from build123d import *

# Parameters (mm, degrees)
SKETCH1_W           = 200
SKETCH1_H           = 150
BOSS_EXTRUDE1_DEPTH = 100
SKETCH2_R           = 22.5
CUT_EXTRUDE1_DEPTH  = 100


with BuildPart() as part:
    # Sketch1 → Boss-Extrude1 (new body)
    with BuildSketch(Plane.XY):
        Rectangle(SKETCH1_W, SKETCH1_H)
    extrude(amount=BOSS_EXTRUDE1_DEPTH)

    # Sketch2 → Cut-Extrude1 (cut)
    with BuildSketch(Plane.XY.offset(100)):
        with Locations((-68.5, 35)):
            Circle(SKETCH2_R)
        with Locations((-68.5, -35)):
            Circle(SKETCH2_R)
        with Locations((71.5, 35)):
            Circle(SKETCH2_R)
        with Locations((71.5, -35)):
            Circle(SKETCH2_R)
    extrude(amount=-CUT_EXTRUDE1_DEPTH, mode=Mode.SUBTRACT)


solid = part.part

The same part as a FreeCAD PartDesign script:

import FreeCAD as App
import Part
import Sketcher

V = App.Vector
Q = App.Units.Quantity

doc = App.newDocument("Part")
params = doc.addObject("Spreadsheet::Sheet", "Params")
for row, (alias, value) in enumerate([
    ("sketch1_width", "200 mm"),
    ("sketch1_height", "150 mm"),
    ("pad1_length", "100 mm"),
    ("sketch2_diameter", "45 mm"),
    ("pocket1_length", "100 mm"),
], start=1):
    params.set(f"A{row}", alias)
    params.set(f"B{row}", "=" + value)
    params.setAlias(f"B{row}", alias)

body = doc.addObject("PartDesign::Body", "Body")

# Sketch on XY plane
sketch1 = body.newObject("Sketcher::SketchObject", "Sketch")
sketch1.AttachmentSupport = (doc.getObject("XY_Plane"), [""])
sketch1.MapMode = "FlatFace"
sketch1.addGeometry(Part.LineSegment(V(-100, 75, 0), V(-100, -75, 0)), False)
sketch1.addGeometry(Part.LineSegment(V(-100, -75, 0), V(100, -75, 0)), False)
sketch1.addGeometry(Part.LineSegment(V(100, -75, 0), V(100, 75, 0)), False)
sketch1.addGeometry(Part.LineSegment(V(100, 75, 0), V(-100, 75, 0)), False)
sketch1.addConstraint(Sketcher.Constraint("Coincident", 0, 2, 1, 1))
sketch1.addConstraint(Sketcher.Constraint("Coincident", 1, 2, 2, 1))
sketch1.addConstraint(Sketcher.Constraint("Coincident", 2, 2, 3, 1))
sketch1.addConstraint(Sketcher.Constraint("Coincident", 3, 2, 0, 1))
sketch1.addConstraint(Sketcher.Constraint("Vertical", 0))
sketch1.addConstraint(Sketcher.Constraint("Horizontal", 1))
sketch1.addConstraint(Sketcher.Constraint("Vertical", 2))
sketch1.addConstraint(Sketcher.Constraint("Horizontal", 3))
sketch1.addConstraint(Sketcher.Constraint("Symmetric", 0, 2, 2, 2, -1, 1))
sketch1.addConstraint(Sketcher.Constraint("DistanceX", 1, 1, 1, 2, Q("200 mm")))
sketch1.addConstraint(Sketcher.Constraint("DistanceY", 0, 2, 0, 1, Q("150 mm")))
sketch1.setExpression("Constraints[9]", "Params.sketch1_width")
sketch1.setExpression("Constraints[10]", "Params.sketch1_height")
pad1 = body.newObject("PartDesign::Pad", "Pad")
pad1.Profile = sketch1
pad1.setExpression("Length", "Params.pad1_length")

# Sketch on XY plane
sketch2 = body.newObject("Sketcher::SketchObject", "Sketch001")
sketch2.AttachmentSupport = (doc.getObject("XY_Plane"), [""])
sketch2.MapMode = "FlatFace"
sketch2.AttachmentOffset = App.Placement(V(0, 0, 100), App.Rotation())
sketch2.addGeometry(Part.Circle(V(-68, 35, 0), V(0, 0, 1), 22), False)
sketch2.addGeometry(Part.Circle(V(-68, -35, 0), V(0, 0, 1), 22), False)
sketch2.addGeometry(Part.Circle(V(72, 35, 0), V(0, 0, 1), 22), False)
sketch2.addGeometry(Part.Circle(V(72, -35, 0), V(0, 0, 1), 22), False)
sketch2.addConstraint(Sketcher.Constraint("Equal", 0, 1))
sketch2.addConstraint(Sketcher.Constraint("Equal", 1, 2))
sketch2.addConstraint(Sketcher.Constraint("Equal", 2, 3))
sketch2.addConstraint(Sketcher.Constraint("Symmetric", 0, 3, 1, 3, -1))
sketch2.addConstraint(Sketcher.Constraint("Symmetric", 2, 3, 3, 3, -1))
sketch2.addConstraint(Sketcher.Constraint("Horizontal", 0, 3, 2, 3))
sketch2.addConstraint(Sketcher.Constraint("Diameter", 0, Q("45 mm")))
sketch2.addConstraint(Sketcher.Constraint("DistanceY", -1, 1, 0, 3, Q("35 mm")))
sketch2.addConstraint(Sketcher.Constraint("DistanceX", 0, 3, 2, 3, Q("140 mm")))
sketch2.addConstraint(Sketcher.Constraint("DistanceX", 0, 3, -1, 1, Q("68.5 mm")))
sketch2.setExpression("Constraints[6]", "Params.sketch2_diameter")
pocket1 = body.newObject("PartDesign::Pocket", "Pocket")
pocket1.Profile = sketch2
pocket1.setExpression("Length", "Params.pocket1_length")

doc.recompute()
